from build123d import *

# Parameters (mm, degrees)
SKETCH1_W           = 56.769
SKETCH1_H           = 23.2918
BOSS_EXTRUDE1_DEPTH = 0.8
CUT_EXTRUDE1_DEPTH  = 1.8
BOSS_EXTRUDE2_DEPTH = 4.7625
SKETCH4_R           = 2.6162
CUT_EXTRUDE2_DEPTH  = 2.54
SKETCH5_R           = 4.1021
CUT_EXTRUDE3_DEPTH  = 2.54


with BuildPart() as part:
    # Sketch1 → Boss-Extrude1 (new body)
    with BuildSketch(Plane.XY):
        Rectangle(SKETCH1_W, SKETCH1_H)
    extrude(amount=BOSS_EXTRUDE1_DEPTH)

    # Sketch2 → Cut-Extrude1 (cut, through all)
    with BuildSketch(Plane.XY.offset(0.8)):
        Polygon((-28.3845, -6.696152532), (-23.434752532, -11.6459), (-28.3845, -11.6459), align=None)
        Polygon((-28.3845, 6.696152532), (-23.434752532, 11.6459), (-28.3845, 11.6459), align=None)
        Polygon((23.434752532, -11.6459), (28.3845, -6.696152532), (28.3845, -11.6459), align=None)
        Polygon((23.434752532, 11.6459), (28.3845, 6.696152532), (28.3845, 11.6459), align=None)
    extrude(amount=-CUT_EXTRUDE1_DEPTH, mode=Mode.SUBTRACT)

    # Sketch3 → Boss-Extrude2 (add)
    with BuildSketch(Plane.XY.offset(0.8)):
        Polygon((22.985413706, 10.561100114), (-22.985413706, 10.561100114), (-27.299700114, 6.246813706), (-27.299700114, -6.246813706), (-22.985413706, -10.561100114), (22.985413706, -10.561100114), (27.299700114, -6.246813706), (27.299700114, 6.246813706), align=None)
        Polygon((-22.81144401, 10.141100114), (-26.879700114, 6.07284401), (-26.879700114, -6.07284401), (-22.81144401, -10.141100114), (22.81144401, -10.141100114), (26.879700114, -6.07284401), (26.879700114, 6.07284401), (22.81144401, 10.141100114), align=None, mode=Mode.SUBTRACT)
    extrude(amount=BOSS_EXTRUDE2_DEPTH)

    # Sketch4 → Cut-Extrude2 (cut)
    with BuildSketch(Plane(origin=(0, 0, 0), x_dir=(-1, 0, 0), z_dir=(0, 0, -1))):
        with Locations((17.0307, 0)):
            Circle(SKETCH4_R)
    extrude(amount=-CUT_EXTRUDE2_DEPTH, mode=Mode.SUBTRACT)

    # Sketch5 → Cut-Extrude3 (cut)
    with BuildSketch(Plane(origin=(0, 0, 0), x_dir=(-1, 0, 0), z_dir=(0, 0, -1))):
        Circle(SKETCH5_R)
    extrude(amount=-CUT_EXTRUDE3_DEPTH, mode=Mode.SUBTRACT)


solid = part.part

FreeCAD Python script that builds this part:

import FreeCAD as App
import Part
import Sketcher
Q = App.Units.Quantity

doc = App.newDocument("Part")
params = doc.addObject("Spreadsheet::Sheet", "Params")
for row, (alias, value) in enumerate([
    ("sketch1_width", "2.235 in"),
    ("sketch1_height", "0.917 in"),
    ("pad1_length", "0.8 mm"),
    ("pad2_length", "0.1875 in"),
    ("sketch4_diameter", "0.206 in"),
    ("pocket2_length", "0.1 in"),
    ("sketch5_diameter", "0.323 in"),
    ("pocket3_length", "0.1 in"),
], start=1):
    params.set(f"A{row}", alias)
    params.set(f"B{row}", "=" + value)
    params.setAlias(f"B{row}", alias)

body = doc.addObject("PartDesign::Body", "Body")

# Sketch on XY plane
sketch1 = doc.addObject("Sketcher::SketchObject", "Sketch")
body.addObject(sketch1)
sketch1.AttachmentSupport = (doc.XY_Plane, [""])
sketch1.MapMode = "FlatFace"
sketch1.addGeometry([
    Part.LineSegment(App.Vector(-28, 12, 0), App.Vector(-28, -12, 0)),
    Part.LineSegment(App.Vector(-28, -12, 0), App.Vector(28, -12, 0)),
    Part.LineSegment(App.Vector(28, -12, 0), App.Vector(28, 12, 0)),
    Part.LineSegment(App.Vector(28, 12, 0), App.Vector(-28, 12, 0)),
], False)
sketch1.addConstraint([
    Sketcher.Constraint("Coincident", 0, 2, 1, 1),
    Sketcher.Constraint("Coincident", 1, 2, 2, 1),
    Sketcher.Constraint("Coincident", 2, 2, 3, 1),
    Sketcher.Constraint("Coincident", 3, 2, 0, 1),
    Sketcher.Constraint("Vertical", 0),
    Sketcher.Constraint("Horizontal", 1),
    Sketcher.Constraint("Vertical", 2),
    Sketcher.Constraint("Horizontal", 3),
    Sketcher.Constraint("Symmetric", 0, 2, 2, 2, -1, 1),
    Sketcher.Constraint("DistanceX", 1, 1, 1, 2, Q("2.235 in")),
    Sketcher.Constraint("DistanceY", 0, 2, 0, 1, Q("0.917 in")),
])
sketch1.setExpression("Constraints[9]", "Params.sketch1_width")
sketch1.setExpression("Constraints[10]", "Params.sketch1_height")
pad1 = doc.addObject("PartDesign::Pad", "Pad")
body.addObject(pad1)
pad1.Profile = sketch1
pad1.setExpression("Length", "Params.pad1_length")

# Sketch on XY plane
sketch2 = doc.addObject("Sketcher::SketchObject", "Sketch001")
body.addObject(sketch2)
sketch2.AttachmentSupport = (doc.XY_Plane, [""])
sketch2.MapMode = "FlatFace"
sketch2.AttachmentOffset = App.Placement(App.Vector(0, 0, 0.8), App.Rotation())
sketch2.addGeometry([
    Part.LineSegment(App.Vector(-23.4, -11.6, 0), App.Vector(-28.4, -6.7, 0)),  # 0
    Part.LineSegment(App.Vector(-28.4, -6.7, 0), App.Vector(-28.4, -11.6, 0)),  # 1
    Part.LineSegment(App.Vector(-28.4, -11.6, 0), App.Vector(-23.4, -11.6, 0)),  # 2
    Part.LineSegment(App.Vector(-28.4, 6.7, 0), App.Vector(-23.4, 11.6, 0)),  # 3
    Part.LineSegment(App.Vector(-23.4, 11.6, 0), App.Vector(-28.4, 11.6, 0)),  # 4
    Part.LineSegment(App.Vector(-28.4, 11.6, 0), App.Vector(-28.4, 6.7, 0)),  # 5
    Part.LineSegment(App.Vector(28.4, -6.7, 0), App.Vector(23.4, -11.6, 0)),  # 6
    Part.LineSegment(App.Vector(23.4, -11.6, 0), App.Vector(28.4, -11.6, 0)),  # 7
    Part.LineSegment(App.Vector(28.4, -11.6, 0), App.Vector(28.4, -6.7, 0)),  # 8
    Part.LineSegment(App.Vector(23.4, 11.6, 0), App.Vector(28.4, 6.7, 0)),  # 9
    Part.LineSegment(App.Vector(28.4, 6.7, 0), App.Vector(28.4, 11.6, 0)),  # 10
    Part.LineSegment(App.Vector(28.4, 11.6, 0), App.Vector(23.4, 11.6, 0)),  # 11
], False)
sketch2.addConstraint([
    Sketcher.Constraint("Coincident", 0, 2, 1, 1),
    Sketcher.Constraint("Coincident", 1, 2, 2, 1),
    Sketcher.Constraint("Coincident", 2, 2, 0, 1),
    Sketcher.Constraint("Coincident", 3, 2, 4, 1),
    Sketcher.Constraint("Coincident", 4, 2, 5, 1),
    Sketcher.Constraint("Coincident", 5, 2, 3, 1),
    Sketcher.Constraint("Coincident", 6, 2, 7, 1),
    Sketcher.Constraint("Coincident", 7, 2, 8, 1),
    Sketcher.Constraint("Coincident", 8, 2, 6, 1),
    Sketcher.Constraint("Coincident", 9, 2, 10, 1),
    Sketcher.Constraint("Coincident", 10, 2, 11, 1),
    Sketcher.Constraint("Coincident", 11, 2, 9, 1),
    Sketcher.Constraint("Vertical", 1),
    Sketcher.Constraint("Horizontal", 2),
    Sketcher.Constraint("Horizontal", 4),
    Sketcher.Constraint("Vertical", 5),
    Sketcher.Constraint("Horizontal", 7),
    Sketcher.Constraint("Vertical", 8),
    Sketcher.Constraint("Vertical", 10),
    Sketcher.Constraint("Horizontal", 11),
    Sketcher.Constraint("Symmetric", 3, 2, 6, 2, -1, 1),
    Sketcher.Constraint("Symmetric", 5, 2, 8, 2, -1, 1),
    Sketcher.Constraint("Symmetric", 0, 2, 9, 2, -1, 1),
    Sketcher.Constraint("Symmetric", 2, 2, 11, 2, -1, 1),
    Sketcher.Constraint("Symmetric", 2, 2, 6, 2, -2),
    Sketcher.Constraint("Symmetric", 0, 2, 8, 2, -2),
    Sketcher.Constraint("Perpendicular", 0, 3),
    Sketcher.Constraint("DistanceY", 2, 2, 3, 2, Q("0.917 in")),
    Sketcher.Constraint("DistanceX", 1, 2, 7, 2, Q("2.235 in")),
    Sketcher.Constraint("Distance", 0, Q("7 mm")),
])
pocket1 = doc.addObject("PartDesign::Pocket", "Pocket")
body.addObject(pocket1)
pocket1.Profile = sketch2
pocket1.Type = "ThroughAll"

# Sketch on XY plane
sketch3 = doc.addObject("Sketcher::SketchObject", "Sketch002")
body.addObject(sketch3)
sketch3.AttachmentSupport = (doc.XY_Plane, [""])
sketch3.MapMode = "FlatFace"
sketch3.AttachmentOffset = App.Placement(App.Vector(0, 0, 0.8), App.Rotation())
sketch3.addGeometry([
    Part.LineSegment(App.Vector(23, 11, 0), App.Vector(-23, 11, 0)),  # 0
    Part.LineSegment(App.Vector(-23, 11, 0), App.Vector(-27, 6, 0)),  # 1
    Part.LineSegment(App.Vector(-27, 6, 0), App.Vector(-27, -6, 0)),  # 2
    Part.LineSegment(App.Vector(-27, -6, 0), App.Vector(-23, -11, 0)),  # 3
    Part.LineSegment(App.Vector(-23, -11, 0), App.Vector(23, -11, 0)),  # 4
    Part.LineSegment(App.Vector(23, -11, 0), App.Vector(27, -6, 0)),  # 5
    Part.LineSegment(App.Vector(27, -6, 0), App.Vector(27, 6, 0)),  # 6
    Part.LineSegment(App.Vector(27, 6, 0), App.Vector(23, 11, 0)),  # 7
    Part.LineSegment(App.Vector(-27, 6, 0), App.Vector(-23, 10, 0)),  # 8
    Part.LineSegment(App.Vector(-23, 10, 0), App.Vector(23, 10, 0)),  # 9
    Part.LineSegment(App.Vector(23, 10, 0), App.Vector(27, 6, 0)),  # 10
    Part.LineSegment(App.Vector(27, 6, 0), App.Vector(27, -6, 0)),  # 11
    Part.LineSegment(App.Vector(27, -6, 0), App.Vector(23, -10, 0)),  # 12
    Part.LineSegment(App.Vector(23, -10, 0), App.Vector(-23, -10, 0)),  # 13
    Part.LineSegment(App.Vector(-23, -10, 0), App.Vector(-27, -6, 0)),  # 14
    Part.LineSegment(App.Vector(-27, -6, 0), App.Vector(-27, 6, 0)),  # 15
], False)
sketch3.addConstraint([
    Sketcher.Constraint("Coincident", 0, 2, 1, 1),
    Sketcher.Constraint("Coincident", 1, 2, 2, 1),
    Sketcher.Constraint("Coincident", 2, 2, 3, 1),
    Sketcher.Constraint("Coincident", 3, 2, 4, 1),
    Sketcher.Constraint("Coincident", 4, 2, 5, 1),
    Sketcher.Constraint("Coincident", 5, 2, 6, 1),
    Sketcher.Constraint("Coincident", 6, 2, 7, 1),
    Sketcher.Constraint("Coincident", 7, 2, 0, 1),
    Sketcher.Constraint("Coincident", 8, 2, 9, 1),
    Sketcher.Constraint("Coincident", 9, 2, 10, 1),
    Sketcher.Constraint("Coincident", 10, 2, 11, 1),
    Sketcher.Constraint("Coincident", 11, 2, 12, 1),
    Sketcher.Constraint("Coincident", 12, 2, 13, 1),
    Sketcher.Constraint("Coincident", 13, 2, 14, 1),
    Sketcher.Constraint("Coincident", 14, 2, 15, 1),
    Sketcher.Constraint("Coincident", 15, 2, 8, 1),
    Sketcher.Constraint("Horizontal", 0),
    Sketcher.Constraint("Vertical", 2),
    Sketcher.Constraint("Horizontal", 4),
    Sketcher.Constraint("Vertical", 6),
    Sketcher.Constraint("Horizontal", 9),
    Sketcher.Constraint("Vertical", 11),
    Sketcher.Constraint("Horizontal", 13),
    Sketcher.Constraint("Vertical", 15),
    Sketcher.Constraint("Symmetric", 0, 2, 4, 2, -1, 1),
    Sketcher.Constraint("Symmetric", 1, 2, 5, 2, -1, 1),
    Sketcher.Constraint("Symmetric", 8, 2, 12, 2, -1, 1),
    Sketcher.Constraint("Symmetric", 10, 2, 14, 2, -1, 1),
    Sketcher.Constraint("Perpendicular", 1, 3),
    Sketcher.Constraint("Perpendicular", 5, 7),
    Sketcher.Constraint("Perpendicular", 7, 8),
    Sketcher.Constraint("Perpendicular", 8, 10),
    Sketcher.Constraint("Perpendicular", 10, 12),
    Sketcher.Constraint("Perpendicular", 12, 14),
    Sketcher.Constraint("Horizontal", 2, 2, 5, 2),
    Sketcher.Constraint("Horizontal", 1, 2, 6, 2),
    Sketcher.Constraint("Horizontal", 11, 2, 14, 2),
    Sketcher.Constraint("Vertical", 0, 2, 3, 2),
    Sketcher.Constraint("DistanceX", 9, 1, 9, 2, Q("45.622888 mm")),
    Sketcher.Constraint("DistanceY", 11, 2, 11, 1, Q("12.145688 mm")),
    Sketcher.Constraint("DistanceY", -1, 1, 0, 2, Q("10.5611 mm")),
    Sketcher.Constraint("DistanceX", 1, 2, -1, 1, Q("27.2997 mm")),
    Sketcher.Constraint("DistanceY", -1, 1, 8, 2, Q("10.1411 mm")),
    Sketcher.Constraint("DistanceX", 0, 2, 0, 1, Q("45.970827 mm")),
])
pad2 = doc.addObject("PartDesign::Pad", "Pad001")
body.addObject(pad2)
pad2.Profile = sketch3
pad2.setExpression("Length", "Params.pad2_length")

# Sketch on XY plane
sketch4 = doc.addObject("Sketcher::SketchObject", "Sketch003")
body.addObject(sketch4)
sketch4.AttachmentSupport = (doc.XY_Plane, [""])
sketch4.MapMode = "FlatFace"
sketch4.addGeometry(Part.Circle(App.Vector(-17, 0, 0), App.Vector(0, 0, 1), 2.6), False)
sketch4.addConstraint([
    Sketcher.Constraint("PointOnObject", 0, 3, -1),
    Sketcher.Constraint("Diameter", 0, Q("0.206 in")),
    Sketcher.Constraint("DistanceX", 0, 3, -1, 1, Q("0.6705 in")),
])
sketch4.setExpression("Constraints[1]", "Params.sketch4_diameter")
pocket2 = doc.addObject("PartDesign::Pocket", "Pocket001")
body.addObject(pocket2)
pocket2.Profile = sketch4
pocket2.setExpression("Length", "Params.pocket2_length")
pocket2.Reversed = True

# Sketch on XY plane
sketch5 = doc.addObject("Sketcher::SketchObject", "Sketch004")
body.addObject(sketch5)
sketch5.AttachmentSupport = (doc.XY_Plane, [""])
sketch5.MapMode = "FlatFace"
sketch5.addGeometry(Part.Circle(App.Vector(0, 0, 0), App.Vector(0, 0, 1), 4.1), False)
sketch5.addConstraint([
    Sketcher.Constraint("Coincident", 0, 3, -1, 1),
    Sketcher.Constraint("Diameter", 0, Q("0.323 in")),
])
sketch5.setExpression("Constraints[1]", "Params.sketch5_diameter")
pocket3 = doc.addObject("PartDesign::Pocket", "Pocket002")
body.addObject(pocket3)
pocket3.Profile = sketch5
pocket3.setExpression("Length", "Params.pocket3_length")
pocket3.Reversed = True

doc.recompute()
